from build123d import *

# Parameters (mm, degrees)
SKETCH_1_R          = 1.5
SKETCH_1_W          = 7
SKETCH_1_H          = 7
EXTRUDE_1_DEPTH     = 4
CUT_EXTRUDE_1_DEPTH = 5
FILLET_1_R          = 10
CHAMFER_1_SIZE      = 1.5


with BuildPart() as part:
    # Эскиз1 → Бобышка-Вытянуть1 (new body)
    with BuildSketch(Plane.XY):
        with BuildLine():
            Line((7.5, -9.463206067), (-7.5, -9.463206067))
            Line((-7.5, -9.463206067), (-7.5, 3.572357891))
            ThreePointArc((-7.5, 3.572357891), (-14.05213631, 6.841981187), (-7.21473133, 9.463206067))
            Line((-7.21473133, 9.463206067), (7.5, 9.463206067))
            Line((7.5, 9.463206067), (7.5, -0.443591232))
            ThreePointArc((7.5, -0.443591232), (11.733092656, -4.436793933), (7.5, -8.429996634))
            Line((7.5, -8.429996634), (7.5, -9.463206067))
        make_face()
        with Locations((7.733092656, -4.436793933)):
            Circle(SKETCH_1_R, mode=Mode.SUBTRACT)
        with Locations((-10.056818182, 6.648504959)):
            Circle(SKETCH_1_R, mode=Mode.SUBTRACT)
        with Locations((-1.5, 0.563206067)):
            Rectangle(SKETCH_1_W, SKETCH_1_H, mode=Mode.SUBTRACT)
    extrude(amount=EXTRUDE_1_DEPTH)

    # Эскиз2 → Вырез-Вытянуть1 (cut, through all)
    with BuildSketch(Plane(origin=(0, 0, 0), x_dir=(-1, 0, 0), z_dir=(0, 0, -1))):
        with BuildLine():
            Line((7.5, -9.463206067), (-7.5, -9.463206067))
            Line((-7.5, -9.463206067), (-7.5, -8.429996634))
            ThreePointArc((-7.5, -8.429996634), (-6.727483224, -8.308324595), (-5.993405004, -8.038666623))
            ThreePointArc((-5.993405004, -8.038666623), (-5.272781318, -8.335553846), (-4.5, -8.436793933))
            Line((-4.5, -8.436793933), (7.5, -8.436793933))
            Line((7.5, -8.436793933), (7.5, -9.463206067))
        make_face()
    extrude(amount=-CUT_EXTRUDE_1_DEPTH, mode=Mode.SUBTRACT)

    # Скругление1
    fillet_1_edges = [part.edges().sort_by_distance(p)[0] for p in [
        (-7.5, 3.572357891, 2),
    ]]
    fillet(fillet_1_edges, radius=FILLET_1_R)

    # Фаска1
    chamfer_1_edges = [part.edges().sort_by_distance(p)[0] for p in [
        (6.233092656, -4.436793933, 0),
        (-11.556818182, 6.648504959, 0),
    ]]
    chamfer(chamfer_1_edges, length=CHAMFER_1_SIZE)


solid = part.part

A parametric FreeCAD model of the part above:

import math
import FreeCAD as App
import Part
import Sketcher

V = App.Vector
Q = App.Units.Quantity


def edges_at(feature, points):
    """Names of the edges that pass closest to the given points."""
    edges = feature.Shape.Edges
    near = lambda p: min(range(len(edges)), key=lambda i: edges[i].distToShape(Part.Vertex(*p))[0])
    return sorted({f"Edge{near(p) + 1}" for p in points})

doc = App.newDocument("Part")
body = doc.addObject("PartDesign::Body", "Body")

# Sketch on XY plane
sketch1 = body.newObject("Sketcher::SketchObject", "Sketch")
sketch1.AttachmentSupport = (doc.getObject("XY_Plane"), [""])
sketch1.MapMode = "FlatFace"
sketch1.addGeometry([
    Part.LineSegment(V(-7.5, -9.5, 0), V(7.5, -9.5, 0)),  # 0
    Part.LineSegment(V(7.5, -9.5, 0), V(7.5, -8.4, 0)),  # 1
    Part.ArcOfCircle(Part.Circle(V(7.7, -4.4, 0), V(0, 0, 1), 4), math.radians(-93), math.radians(93)),  # 2
    Part.LineSegment(V(7.5, -0.4, 0), V(7.5, 9.5, 0)),  # 3
    Part.LineSegment(V(7.5, 9.5, 0), V(-7.2, 9.5, 0)),  # 4
    Part.ArcOfCircle(Part.Circle(V(-10.1, 6.6, 0), V(0, 0, 1), 4), math.radians(45), math.radians(310)),  # 5
    Part.LineSegment(V(-7.5, 3.6, 0), V(-7.5, -9.5, 0)),  # 6
    Part.Circle(V(7.7, -4.4, 0), V(0, 0, 1), 1.5),  # 7
    Part.LineSegment(V(-5, -2.9, 0), V(-5, 4.1, 0)),  # 8
    Part.LineSegment(V(-5, 4.1, 0), V(2, 4.1, 0)),  # 9
    Part.LineSegment(V(2, 4.1, 0), V(2, -2.9, 0)),  # 10
    Part.LineSegment(V(2, -2.9, 0), V(-5, -2.9, 0)),  # 11
    Part.Circle(V(-10.1, 6.6, 0), V(0, 0, 1), 1.5),  # 12
], False)
sketch1.addConstraint([
    Sketcher.Constraint("Coincident", 0, 2, 1, 1),
    Sketcher.Constraint("Coincident", 1, 2, 2, 1),
    Sketcher.Constraint("Coincident", 2, 2, 3, 1),
    Sketcher.Constraint("Coincident", 3, 2, 4, 1),
    Sketcher.Constraint("Coincident", 4, 2, 5, 1),
    Sketcher.Constraint("Coincident", 5, 2, 6, 1),
    Sketcher.Constraint("Coincident", 6, 2, 0, 1),
    Sketcher.Constraint("Coincident", 8, 2, 9, 1),
    Sketcher.Constraint("Coincident", 9, 2, 10, 1),
    Sketcher.Constraint("Coincident", 10, 2, 11, 1),
    Sketcher.Constraint("Coincident", 11, 2, 8, 1),
    Sketcher.Constraint("Horizontal", 0),
    Sketcher.Constraint("Vertical", 1),
    Sketcher.Constraint("Vertical", 3),
    Sketcher.Constraint("Horizontal", 4),
    Sketcher.Constraint("Vertical", 6),
    Sketcher.Constraint("Vertical", 8),
    Sketcher.Constraint("Horizontal", 9),
    Sketcher.Constraint("Vertical", 10),
    Sketcher.Constraint("Horizontal", 11),
    Sketcher.Constraint("Coincident", 7, 3, 2, 3),
    Sketcher.Constraint("Coincident", 12, 3, 5, 3),
    Sketcher.Constraint("Equal", 2, 5),
    Sketcher.Constraint("Equal", 7, 12),
    Sketcher.Constraint("Symmetric", 3, 2, 6, 2, -1, 1),
    Sketcher.Constraint("Vertical", 1, 2, 2, 2),
    Sketcher.Constraint("Equal", 11, 8),
    Sketcher.Constraint("Diameter", 7, Q("3 mm")),
    Sketcher.Constraint("Radius", 2, Q("4 mm")),
    Sketcher.Constraint("DistanceX", 0, 1, 0, 2, Q("15 mm")),
    Sketcher.Constraint("DistanceX", 9, 1, 9, 2, Q("7 mm")),
    Sketcher.Constraint("DistanceX", 8, 2, -1, 1, Q("5 mm")),
    Sketcher.Constraint("DistanceY", 2, 3, 3, 2, Q("13.9 mm")),
    Sketcher.Constraint("DistanceY", 8, 2, 4, 2, Q("5.4 mm")),
    Sketcher.Constraint("DistanceX", 4, 2, 4, 1, Q("14.714731 mm")),
    Sketcher.Constraint("DistanceY", 1, 1, 1, 2, Q("1.033209 mm")),
    Sketcher.Constraint("DistanceY", 2, 3, 5, 3, Q("11.085299 mm")),
    Sketcher.Constraint("DistanceY", 1, 2, 5, 3, Q("15.078502 mm")),
])
pad1 = body.newObject("PartDesign::Pad", "Pad")
pad1.Profile = sketch1
pad1.Length = 4

# Sketch on XY plane
sketch2 = body.newObject("Sketcher::SketchObject", "Sketch001")
sketch2.AttachmentSupport = (doc.getObject("XY_Plane"), [""])
sketch2.MapMode = "FlatFace"
sketch2.addGeometry([
    Part.LineSegment(V(7.5, -9.5, 0), V(-7.5, -9.5, 0)),  # 0
    Part.LineSegment(V(-7.5, -9.5, 0), V(-7.5, -8.4, 0)),  # 1
    Part.LineSegment(V(-7.5, -8.4, 0), V(4.5, -8.4, 0)),  # 2
    Part.ArcOfCircle(Part.Circle(V(4.5, -5.4, 0), V(0, 0, 1), 3), math.radians(-90), math.radians(-60)),  # 3
    Part.ArcOfCircle(Part.Circle(V(7.7, -4.4, 0), V(0, 0, 1), 4), math.radians(-116), math.radians(-93)),  # 4
    Part.LineSegment(V(7.5, -8.4, 0), V(7.5, -9.5, 0)),  # 5
], False)
sketch2.addConstraint([
    Sketcher.Constraint("Coincident", 0, 2, 1, 1),
    Sketcher.Constraint("Coincident", 1, 2, 2, 1),
    Sketcher.Constraint("Tangent", 2, 2, 3, 1),
    Sketcher.Constraint("Coincident", 3, 2, 4, 1),
    Sketcher.Constraint("Coincident", 4, 2, 5, 1),
    Sketcher.Constraint("Coincident", 5, 2, 0, 1),
    Sketcher.Constraint("Horizontal", 0),
    Sketcher.Constraint("Vertical", 1),
    Sketcher.Constraint("Horizontal", 2),
    Sketcher.Constraint("Vertical", 5),
    Sketcher.Constraint("Radius", 3, Q("3 mm")),
    Sketcher.Constraint("Radius", 4, Q("4 mm")),
    Sketcher.Constraint("DistanceX", 0, 2, 0, 1, Q("15 mm")),
    Sketcher.Constraint("DistanceX", 2, 1, 2, 2, Q("12 mm")),
    Sketcher.Constraint("DistanceY", 3, 3, 4, 3, Q("1 mm")),
    Sketcher.Constraint("DistanceX", -1, 1, 3, 3, Q("4.5 mm")),
    Sketcher.Constraint("DistanceY", 5, 2, 5, 1, Q("1.033209 mm")),
    Sketcher.Constraint("DistanceY", 1, 1, 1, 2, Q("1.026412 mm")),
    Sketcher.Constraint("DistanceY", 3, 3, -1, 1, Q("5.436794 mm")),
])
pocket1 = body.newObject("PartDesign::Pocket", "Pocket")
pocket1.Profile = sketch2
pocket1.Type = "ThroughAll"
pocket1.Reversed = True
doc.recompute()

fillet = body.newObject("PartDesign::Fillet", "Fillet")
fillet.Base = (pocket1, edges_at(pocket1, [(-7.5, 3.572, 2)]))
fillet.Radius = 10
doc.recompute()

chamfer = body.newObject("PartDesign::Chamfer", "Chamfer")
chamfer.Base = (fillet, edges_at(fillet, [(6.233, -4.437, 0), (-11.557, 6.649, 0)]))
chamfer.Size = 1.5

doc.recompute()
